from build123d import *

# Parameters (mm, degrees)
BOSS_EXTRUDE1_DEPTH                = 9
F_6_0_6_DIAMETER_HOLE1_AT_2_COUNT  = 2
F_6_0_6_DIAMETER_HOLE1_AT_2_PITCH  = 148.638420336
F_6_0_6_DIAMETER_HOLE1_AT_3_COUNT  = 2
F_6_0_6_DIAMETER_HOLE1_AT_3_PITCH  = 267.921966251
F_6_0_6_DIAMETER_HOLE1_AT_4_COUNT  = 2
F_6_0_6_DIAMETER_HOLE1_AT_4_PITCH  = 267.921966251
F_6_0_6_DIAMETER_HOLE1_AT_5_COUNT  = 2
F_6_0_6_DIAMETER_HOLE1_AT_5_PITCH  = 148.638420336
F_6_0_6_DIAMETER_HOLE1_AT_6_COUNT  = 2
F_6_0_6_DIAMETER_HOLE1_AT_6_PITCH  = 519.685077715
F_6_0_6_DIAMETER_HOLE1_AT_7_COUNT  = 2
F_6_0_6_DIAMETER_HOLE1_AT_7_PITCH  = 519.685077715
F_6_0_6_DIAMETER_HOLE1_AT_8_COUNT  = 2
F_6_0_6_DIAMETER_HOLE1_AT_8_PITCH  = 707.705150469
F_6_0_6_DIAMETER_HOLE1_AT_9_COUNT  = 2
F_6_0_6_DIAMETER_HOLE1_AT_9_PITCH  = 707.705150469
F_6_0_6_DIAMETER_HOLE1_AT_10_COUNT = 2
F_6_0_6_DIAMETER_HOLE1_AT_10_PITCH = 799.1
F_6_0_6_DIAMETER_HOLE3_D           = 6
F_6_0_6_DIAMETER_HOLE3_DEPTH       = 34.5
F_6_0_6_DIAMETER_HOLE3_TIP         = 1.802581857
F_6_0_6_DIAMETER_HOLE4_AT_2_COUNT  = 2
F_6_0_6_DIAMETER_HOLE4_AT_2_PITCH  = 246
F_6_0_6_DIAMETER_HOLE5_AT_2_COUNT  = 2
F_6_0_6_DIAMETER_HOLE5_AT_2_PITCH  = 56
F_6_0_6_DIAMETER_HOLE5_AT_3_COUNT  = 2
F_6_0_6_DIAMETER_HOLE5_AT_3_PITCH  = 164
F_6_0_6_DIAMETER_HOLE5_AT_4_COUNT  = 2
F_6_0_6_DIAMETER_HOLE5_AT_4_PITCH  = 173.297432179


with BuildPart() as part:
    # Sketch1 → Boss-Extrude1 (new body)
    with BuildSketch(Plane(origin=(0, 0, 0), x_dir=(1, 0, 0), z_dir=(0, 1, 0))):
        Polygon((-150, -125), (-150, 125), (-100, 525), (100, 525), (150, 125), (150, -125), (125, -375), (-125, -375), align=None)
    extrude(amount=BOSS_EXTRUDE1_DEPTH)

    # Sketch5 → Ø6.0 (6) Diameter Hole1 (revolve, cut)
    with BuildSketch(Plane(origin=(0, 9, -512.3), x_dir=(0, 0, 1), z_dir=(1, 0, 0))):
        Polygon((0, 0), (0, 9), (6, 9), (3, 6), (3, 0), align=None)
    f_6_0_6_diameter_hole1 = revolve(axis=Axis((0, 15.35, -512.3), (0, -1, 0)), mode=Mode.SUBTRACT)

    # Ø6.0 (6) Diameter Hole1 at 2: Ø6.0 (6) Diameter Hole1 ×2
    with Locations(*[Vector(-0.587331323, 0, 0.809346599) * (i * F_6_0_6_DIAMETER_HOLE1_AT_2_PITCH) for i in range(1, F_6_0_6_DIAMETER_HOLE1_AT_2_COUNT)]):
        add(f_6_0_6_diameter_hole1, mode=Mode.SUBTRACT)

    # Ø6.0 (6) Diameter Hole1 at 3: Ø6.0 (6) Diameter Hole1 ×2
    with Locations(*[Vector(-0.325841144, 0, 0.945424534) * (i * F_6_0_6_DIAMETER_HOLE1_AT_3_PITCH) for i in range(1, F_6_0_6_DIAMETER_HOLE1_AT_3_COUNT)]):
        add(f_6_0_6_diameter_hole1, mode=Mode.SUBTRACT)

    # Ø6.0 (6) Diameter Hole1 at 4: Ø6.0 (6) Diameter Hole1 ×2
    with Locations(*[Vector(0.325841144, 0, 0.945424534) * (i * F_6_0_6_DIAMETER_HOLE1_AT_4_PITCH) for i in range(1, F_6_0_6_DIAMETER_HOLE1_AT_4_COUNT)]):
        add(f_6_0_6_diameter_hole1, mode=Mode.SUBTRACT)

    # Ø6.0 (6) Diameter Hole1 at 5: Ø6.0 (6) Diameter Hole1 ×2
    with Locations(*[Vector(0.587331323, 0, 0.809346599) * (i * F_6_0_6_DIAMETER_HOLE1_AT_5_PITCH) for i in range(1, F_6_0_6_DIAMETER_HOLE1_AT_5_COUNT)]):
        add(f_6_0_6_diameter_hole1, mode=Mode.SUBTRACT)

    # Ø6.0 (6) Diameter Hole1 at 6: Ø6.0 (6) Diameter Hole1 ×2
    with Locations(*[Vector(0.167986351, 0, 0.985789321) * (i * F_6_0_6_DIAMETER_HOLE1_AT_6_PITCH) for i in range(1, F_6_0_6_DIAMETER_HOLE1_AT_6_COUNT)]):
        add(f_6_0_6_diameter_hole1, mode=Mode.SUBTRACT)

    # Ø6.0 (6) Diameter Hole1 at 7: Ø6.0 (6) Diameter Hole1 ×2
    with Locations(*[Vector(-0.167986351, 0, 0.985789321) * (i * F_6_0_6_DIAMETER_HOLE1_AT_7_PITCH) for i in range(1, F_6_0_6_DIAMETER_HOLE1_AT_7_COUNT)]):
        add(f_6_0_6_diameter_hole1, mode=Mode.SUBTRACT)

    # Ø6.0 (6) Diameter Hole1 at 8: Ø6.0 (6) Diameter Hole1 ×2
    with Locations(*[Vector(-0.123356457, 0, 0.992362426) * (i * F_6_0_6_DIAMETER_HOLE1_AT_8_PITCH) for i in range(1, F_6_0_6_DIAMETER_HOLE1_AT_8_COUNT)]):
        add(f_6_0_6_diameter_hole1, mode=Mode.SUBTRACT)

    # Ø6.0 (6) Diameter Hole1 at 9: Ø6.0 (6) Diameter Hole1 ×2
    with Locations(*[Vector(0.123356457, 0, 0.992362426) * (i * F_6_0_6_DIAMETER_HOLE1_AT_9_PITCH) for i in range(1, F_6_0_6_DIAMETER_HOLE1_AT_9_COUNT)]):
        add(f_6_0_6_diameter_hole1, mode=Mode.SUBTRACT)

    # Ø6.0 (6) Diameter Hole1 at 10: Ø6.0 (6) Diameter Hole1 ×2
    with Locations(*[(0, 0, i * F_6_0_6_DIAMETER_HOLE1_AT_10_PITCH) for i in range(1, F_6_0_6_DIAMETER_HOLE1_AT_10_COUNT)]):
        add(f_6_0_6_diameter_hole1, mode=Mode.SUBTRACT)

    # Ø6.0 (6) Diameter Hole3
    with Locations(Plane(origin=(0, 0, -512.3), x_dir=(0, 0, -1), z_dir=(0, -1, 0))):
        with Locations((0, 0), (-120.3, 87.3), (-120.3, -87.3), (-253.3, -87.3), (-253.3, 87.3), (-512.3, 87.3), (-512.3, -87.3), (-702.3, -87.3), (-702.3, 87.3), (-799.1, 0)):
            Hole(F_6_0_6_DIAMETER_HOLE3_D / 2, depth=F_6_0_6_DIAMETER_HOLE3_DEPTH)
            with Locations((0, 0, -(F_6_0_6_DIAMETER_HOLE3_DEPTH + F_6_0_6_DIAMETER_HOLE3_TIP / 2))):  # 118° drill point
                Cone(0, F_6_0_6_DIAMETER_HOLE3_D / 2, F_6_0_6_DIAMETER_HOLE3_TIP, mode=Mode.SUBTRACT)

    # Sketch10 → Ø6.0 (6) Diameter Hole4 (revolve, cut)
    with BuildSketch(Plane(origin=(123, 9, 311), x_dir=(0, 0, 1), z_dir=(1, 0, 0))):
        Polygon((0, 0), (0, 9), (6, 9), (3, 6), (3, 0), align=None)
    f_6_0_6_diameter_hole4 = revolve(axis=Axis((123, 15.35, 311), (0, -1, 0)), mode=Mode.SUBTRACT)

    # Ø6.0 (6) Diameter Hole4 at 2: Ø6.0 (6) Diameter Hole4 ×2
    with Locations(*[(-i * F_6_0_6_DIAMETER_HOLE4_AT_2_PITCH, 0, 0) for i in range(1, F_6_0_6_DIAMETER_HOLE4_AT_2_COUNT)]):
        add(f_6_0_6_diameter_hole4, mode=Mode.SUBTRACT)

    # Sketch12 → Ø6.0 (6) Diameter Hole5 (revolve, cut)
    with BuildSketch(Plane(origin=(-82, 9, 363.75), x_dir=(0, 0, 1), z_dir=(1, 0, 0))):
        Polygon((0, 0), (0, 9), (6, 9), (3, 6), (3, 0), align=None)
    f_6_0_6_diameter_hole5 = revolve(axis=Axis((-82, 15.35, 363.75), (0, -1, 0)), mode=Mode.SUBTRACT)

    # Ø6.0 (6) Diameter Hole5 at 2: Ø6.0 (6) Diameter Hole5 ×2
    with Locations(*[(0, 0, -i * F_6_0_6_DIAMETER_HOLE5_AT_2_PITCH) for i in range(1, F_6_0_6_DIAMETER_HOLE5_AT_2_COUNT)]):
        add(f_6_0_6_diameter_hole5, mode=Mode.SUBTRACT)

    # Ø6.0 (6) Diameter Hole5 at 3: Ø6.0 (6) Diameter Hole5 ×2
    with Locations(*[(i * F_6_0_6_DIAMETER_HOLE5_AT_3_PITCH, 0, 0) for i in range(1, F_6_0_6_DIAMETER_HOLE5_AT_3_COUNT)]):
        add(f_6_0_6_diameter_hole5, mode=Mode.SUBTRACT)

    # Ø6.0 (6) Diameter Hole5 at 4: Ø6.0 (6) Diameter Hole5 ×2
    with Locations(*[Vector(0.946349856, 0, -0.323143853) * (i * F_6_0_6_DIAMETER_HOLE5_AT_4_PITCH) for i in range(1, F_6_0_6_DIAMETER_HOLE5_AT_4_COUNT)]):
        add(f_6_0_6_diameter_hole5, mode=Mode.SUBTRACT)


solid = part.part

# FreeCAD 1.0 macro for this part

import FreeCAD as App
import Part
import Sketcher

V = App.Vector


def add_polygon(sketch, points):
    """Adds a closed chain of lines whose ends are joined by coincident constraints."""
    first, n = sketch.GeometryCount, len(points)
    for a, b in zip(points, points[1:] + points[:1]):
        sketch.addGeometry(Part.LineSegment(App.Vector(*a, 0), App.Vector(*b, 0)), False)
    for i in range(n):
        sketch.addConstraint(Sketcher.Constraint("Coincident", first + i, 2, first + (i + 1) % n, 1))

doc = App.newDocument("Part")
body = doc.addObject("PartDesign::Body", "Body")

# Sketch on XZ plane
sketch1 = doc.addObject("Sketcher::SketchObject", "Sketch")
body.addObject(sketch1)
sketch1.AttachmentSupport = (doc.XZ_Plane, [""])
sketch1.MapMode = "FlatFace"
add_polygon(sketch1, [(-150, -125), (-150, 125), (-125, 375), (125, 375), (150, 125), (150, -125), (100, -525), (-100, -525)])  # lines 0-7
sketch1.addConstraint(Sketcher.Constraint("Vertical", 0))
sketch1.addConstraint(Sketcher.Constraint("Horizontal", 2))
sketch1.addConstraint(Sketcher.Constraint("Vertical", 4))
sketch1.addConstraint(Sketcher.Constraint("Horizontal", 6))
sketch1.addConstraint(Sketcher.Constraint("Symmetric", 0, 2, 4, 2, -1, 1))
sketch1.addConstraint(Sketcher.Constraint("Horizontal", 0, 2, 3, 2))
sketch1.addConstraint(Sketcher.Constraint("Horizontal", 4, 2, 7, 2))
sketch1.addConstraint(Sketcher.Constraint("Equal", 2, 0))
sketch1.addConstraint(Sketcher.Constraint("Equal", 1, 3))
sketch1.addConstraint(Sketcher.Constraint("Equal", 5, 7))
sketch1.addConstraint(Sketcher.Constraint("DistanceX", 2, 1, 2, 2, 250.0))
sketch1.addConstraint(Sketcher.Constraint("DistanceX", 6, 2, 6, 1, 200.0))
sketch1.addConstraint(Sketcher.Constraint("DistanceX", 0, 2, -1, 1, 150.0))
sketch1.addConstraint(Sketcher.Constraint("DistanceY", -1, 1, 1, 2, 375.0))
sketch1.addConstraint(Sketcher.Constraint("DistanceY", 5, 2, -1, 1, 525.0))
pad1 = doc.addObject("PartDesign::Pad", "Pad")
body.addObject(pad1)
pad1.Profile = sketch1
pad1.Length = 9
pad1.Reversed = True

# Sketch on YZ plane
sketch2 = doc.addObject("Sketcher::SketchObject", "Sketch001")
body.addObject(sketch2)
sketch2.AttachmentSupport = (doc.YZ_Plane, [""])
sketch2.MapMode = "FlatFace"
add_polygon(sketch2, [(0, -512.3), (9, -512.3), (9, -509.3), (3, -509.3), (0, -506.3)])  # lines 0-4
sketch2.addGeometry(Part.LineSegment(V(9, -512.3, 0), V(0, -512.3, 0)), True)  # axis
sketch2.addConstraint(Sketcher.Constraint("Horizontal", 0))
sketch2.addConstraint(Sketcher.Constraint("Vertical", 1))
sketch2.addConstraint(Sketcher.Constraint("Horizontal", 2))
sketch2.addConstraint(Sketcher.Constraint("Vertical", 4))
sketch2.addConstraint(Sketcher.Constraint("Horizontal", 5))
sketch2.addConstraint(Sketcher.Constraint("Coincident", 5, 1, 0, 2))
sketch2.addConstraint(Sketcher.Constraint("PointOnObject", 3, 2, -2))
sketch2.addConstraint(Sketcher.Constraint("PointOnObject", 5, 2, -2))
sketch2.addConstraint(Sketcher.Constraint("Equal", 2, 4))
sketch2.addConstraint(Sketcher.Constraint("DistanceX", 0, 1, 0, 2, 9.0))
sketch2.addConstraint(Sketcher.Constraint("DistanceX", 2, 2, 2, 1, 6.0))
sketch2.addConstraint(Sketcher.Constraint("DistanceY", 1, 1, 1, 2, 3.0))
sketch2.addConstraint(Sketcher.Constraint("DistanceY", 0, 2, -1, 1, 512.3))
groove = doc.addObject("PartDesign::Groove", "Groove")
body.addObject(groove)
groove.Profile = sketch2
groove.ReferenceAxis = (sketch2, ["Axis0"])
groove.Angle = 360
doc.recompute()

datumline = doc.addObject("PartDesign::Line", "DatumLine")
body.addObject(datumline)
datumline.Placement = App.Placement(V(0, 0, 0), App.Rotation(V(0, 0, 1), V(-0.587331323, 0, 0.809346599)))
linearpattern = doc.addObject("PartDesign::LinearPattern", "LinearPattern")
body.addObject(linearpattern)
linearpattern.Originals = [groove]
linearpattern.Direction = (datumline, [""])
linearpattern.Mode = "offset"
linearpattern.Offset = 148.63842
linearpattern.Occurrences = 2
body.Tip = linearpattern
doc.recompute()

datumline2 = doc.addObject("PartDesign::Line", "DatumLine001")
body.addObject(datumline2)
datumline2.Placement = App.Placement(V(0, 0, 0), App.Rotation(V(0, 0, 1), V(-0.325841144, 0, 0.945424534)))
linearpattern2 = doc.addObject("PartDesign::LinearPattern", "LinearPattern001")
body.addObject(linearpattern2)
linearpattern2.Originals = [groove]
linearpattern2.Direction = (datumline2, [""])
linearpattern2.Mode = "offset"
linearpattern2.Offset = 267.921966
linearpattern2.Occurrences = 2
body.Tip = linearpattern2
doc.recompute()

datumline3 = doc.addObject("PartDesign::Line", "DatumLine002")
body.addObject(datumline3)
datumline3.Placement = App.Placement(V(0, 0, 0), App.Rotation(V(0, 0, 1), V(0.325841144, 0, 0.945424534)))
linearpattern3 = doc.addObject("PartDesign::LinearPattern", "LinearPattern002")
body.addObject(linearpattern3)
linearpattern3.Originals = [groove]
linearpattern3.Direction = (datumline3, [""])
linearpattern3.Mode = "offset"
linearpattern3.Offset = 267.921966
linearpattern3.Occurrences = 2
body.Tip = linearpattern3
doc.recompute()

datumline4 = doc.addObject("PartDesign::Line", "DatumLine003")
body.addObject(datumline4)
datumline4.Placement = App.Placement(V(0, 0, 0), App.Rotation(V(0, 0, 1), V(0.587331323, 0, 0.809346599)))
linearpattern4 = doc.addObject("PartDesign::LinearPattern", "LinearPattern003")
body.addObject(linearpattern4)
linearpattern4.Originals = [groove]
linearpattern4.Direction = (datumline4, [""])
linearpattern4.Mode = "offset"
linearpattern4.Offset = 148.63842
linearpattern4.Occurrences = 2
body.Tip = linearpattern4
doc.recompute()

datumline5 = doc.addObject("PartDesign::Line", "DatumLine004")
body.addObject(datumline5)
datumline5.Placement = App.Placement(V(0, 0, 0), App.Rotation(V(0, 0, 1), V(0.167986351, 0, 0.985789321)))
linearpattern5 = doc.addObject("PartDesign::LinearPattern", "LinearPattern004")
body.addObject(linearpattern5)
linearpattern5.Originals = [groove]
linearpattern5.Direction = (datumline5, [""])
linearpattern5.Mode = "offset"
linearpattern5.Offset = 519.685078
linearpattern5.Occurrences = 2
body.Tip = linearpattern5
doc.recompute()

datumline6 = doc.addObject("PartDesign::Line", "DatumLine005")
body.addObject(datumline6)
datumline6.Placement = App.Placement(V(0, 0, 0), App.Rotation(V(0, 0, 1), V(-0.167986351, 0, 0.985789321)))
linearpattern6 = doc.addObject("PartDesign::LinearPattern", "LinearPattern005")
body.addObject(linearpattern6)
linearpattern6.Originals = [groove]
linearpattern6.Direction = (datumline6, [""])
linearpattern6.Mode = "offset"
linearpattern6.Offset = 519.685078
linearpattern6.Occurrences = 2
body.Tip = linearpattern6
doc.recompute()

datumline7 = doc.addObject("PartDesign::Line", "DatumLine006")
body.addObject(datumline7)
datumline7.Placement = App.Placement(V(0, 0, 0), App.Rotation(V(0, 0, 1), V(-0.123356457, 0, 0.992362426)))
linearpattern7 = doc.addObject("PartDesign::LinearPattern", "LinearPattern006")
body.addObject(linearpattern7)
linearpattern7.Originals = [groove]
linearpattern7.Direction = (datumline7, [""])
linearpattern7.Mode = "offset"
linearpattern7.Offset = 707.70515
linearpattern7.Occurrences = 2
body.Tip = linearpattern7
doc.recompute()

datumline8 = doc.addObject("PartDesign::Line", "DatumLine007")
body.addObject(datumline8)
datumline8.Placement = App.Placement(V(0, 0, 0), App.Rotation(V(0, 0, 1), V(0.123356457, 0, 0.992362426)))
linearpattern8 = doc.addObject("PartDesign::LinearPattern", "LinearPattern007")
body.addObject(linearpattern8)
linearpattern8.Originals = [groove]
linearpattern8.Direction = (datumline8, [""])
linearpattern8.Mode = "offset"
linearpattern8.Offset = 707.70515
linearpattern8.Occurrences = 2
body.Tip = linearpattern8
doc.recompute()

linearpattern9 = doc.addObject("PartDesign::LinearPattern", "LinearPattern008")
body.addObject(linearpattern9)
linearpattern9.Originals = [groove]
linearpattern9.Direction = (doc.Z_Axis, [""])
linearpattern9.Mode = "offset"
linearpattern9.Offset = 799.1
linearpattern9.Occurrences = 2
body.Tip = linearpattern9

# Sketch on XZ plane
sketch3 = doc.addObject("Sketcher::SketchObject", "Sketch002")
body.addObject(sketch3)
sketch3.AttachmentSupport = (doc.XZ_Plane, [""])
sketch3.MapMode = "FlatFace"
sketch3.addGeometry(Part.Circle(V(0, -512.3, 0), V(0, 0, 1), 3), False)
sketch3.addGeometry(Part.Circle(V(87.3, -392, 0), V(0, 0, 1), 3), False)
sketch3.addGeometry(Part.Circle(V(-87.3, -392, 0), V(0, 0, 1), 3), False)
sketch3.addGeometry(Part.Circle(V(-87.3, -259, 0), V(0, 0, 1), 3), False)
sketch3.addGeometry(Part.Circle(V(87.3, -259, 0), V(0, 0, 1), 3), False)
sketch3.addGeometry(Part.Circle(V(87.3, 0, 0), V(0, 0, 1), 3), False)
sketch3.addGeometry(Part.Circle(V(-87.3, 0, 0), V(0, 0, 1), 3), False)
sketch3.addGeometry(Part.Circle(V(-87.3, 190, 0), V(0, 0, 1), 3), False)
sketch3.addGeometry(Part.Circle(V(87.3, 190, 0), V(0, 0, 1), 3), False)
sketch3.addGeometry(Part.Circle(V(0, 286.8, 0), V(0, 0, 1), 3), False)
sketch3.addConstraint(Sketcher.Constraint("Equal", 0, 1))
sketch3.addConstraint(Sketcher.Constraint("Equal", 1, 2))
sketch3.addConstraint(Sketcher.Constraint("Equal", 2, 3))
sketch3.addConstraint(Sketcher.Constraint("Equal", 3, 4))
sketch3.addConstraint(Sketcher.Constraint("Equal", 4, 5))
sketch3.addConstraint(Sketcher.Constraint("Equal", 5, 6))
sketch3.addConstraint(Sketcher.Constraint("Equal", 6, 7))
sketch3.addConstraint(Sketcher.Constraint("Equal", 7, 8))
sketch3.addConstraint(Sketcher.Constraint("Equal", 8, 9))
sketch3.addConstraint(Sketcher.Constraint("Symmetric", 5, 3, 6, 3, -1, 1))
sketch3.addConstraint(Sketcher.Constraint("Symmetric", 1, 3, 2, 3, -2))
sketch3.addConstraint(Sketcher.Constraint("Symmetric", 3, 3, 4, 3, -2))
sketch3.addConstraint(Sketcher.Constraint("Symmetric", 7, 3, 8, 3, -2))
sketch3.addConstraint(Sketcher.Constraint("PointOnObject", 0, 3, -2))
sketch3.addConstraint(Sketcher.Constraint("PointOnObject", 5, 3, -1))
sketch3.addConstraint(Sketcher.Constraint("PointOnObject", 9, 3, -2))
sketch3.addConstraint(Sketcher.Constraint("Vertical", 2, 3, 3, 3))
sketch3.addConstraint(Sketcher.Constraint("Vertical", 4, 3, 5, 3))
sketch3.addConstraint(Sketcher.Constraint("Vertical", 6, 3, 7, 3))
sketch3.addConstraint(Sketcher.Constraint("Diameter", 0, 6.0))
sketch3.addConstraint(Sketcher.Constraint("DistanceY", 1, 3, -1, 1, 392.0))
sketch3.addConstraint(Sketcher.Constraint("DistanceY", 3, 3, -1, 1, 259.0))
sketch3.addConstraint(Sketcher.Constraint("DistanceY", -1, 1, 7, 3, 190.0))
sketch3.addConstraint(Sketcher.Constraint("DistanceY", 0, 3, -1, 1, 512.3))
sketch3.addConstraint(Sketcher.Constraint("DistanceX", -1, 1, 1, 3, 87.3))
sketch3.addConstraint(Sketcher.Constraint("DistanceY", -1, 1, 9, 3, 286.8))
doc.recompute()
hole = doc.addObject("PartDesign::Hole", "Hole")
body.addObject(hole)
hole.Profile = sketch3
hole.ThreadType = "None"
hole.Diameter = 6
hole.DepthType = "Dimension"
hole.Depth = 34.5
hole.DrillPoint = "Angled"
hole.DrillPointAngle = 118

# Sketch on YZ plane
sketch4 = doc.addObject("Sketcher::SketchObject", "Sketch003")
body.addObject(sketch4)
sketch4.AttachmentSupport = (doc.YZ_Plane, [""])
sketch4.MapMode = "FlatFace"
sketch4.AttachmentOffset = App.Placement(V(0, 0, 123), App.Rotation())
add_polygon(sketch4, [(0, 311), (9, 311), (9, 314), (3, 314), (0, 317)])  # lines 0-4
sketch4.addGeometry(Part.LineSegment(V(9, 311, 0), V(0, 311, 0)), True)  # axis
sketch4.addConstraint(Sketcher.Constraint("Horizontal", 0))
sketch4.addConstraint(Sketcher.Constraint("Vertical", 1))
sketch4.addConstraint(Sketcher.Constraint("Horizontal", 2))
sketch4.addConstraint(Sketcher.Constraint("Vertical", 4))
sketch4.addConstraint(Sketcher.Constraint("Horizontal", 5))
sketch4.addConstraint(Sketcher.Constraint("Coincident", 5, 1, 0, 2))
sketch4.addConstraint(Sketcher.Constraint("PointOnObject", 3, 2, -2))
sketch4.addConstraint(Sketcher.Constraint("PointOnObject", 5, 2, -2))
sketch4.addConstraint(Sketcher.Constraint("Equal", 2, 4))
sketch4.addConstraint(Sketcher.Constraint("DistanceX", 0, 1, 0, 2, 9.0))
sketch4.addConstraint(Sketcher.Constraint("DistanceX", 2, 2, 2, 1, 6.0))
sketch4.addConstraint(Sketcher.Constraint("DistanceY", 1, 1, 1, 2, 3.0))
sketch4.addConstraint(Sketcher.Constraint("DistanceY", -1, 1, 0, 2, 311.0))
groove2 = doc.addObject("PartDesign::Groove", "Groove001")
body.addObject(groove2)
groove2.Profile = sketch4
groove2.ReferenceAxis = (sketch4, ["Axis0"])
groove2.Angle = 360
doc.recompute()

linearpattern10 = doc.addObject("PartDesign::LinearPattern", "LinearPattern009")
body.addObject(linearpattern10)
linearpattern10.Originals = [groove2]
linearpattern10.Direction = (doc.X_Axis, [""])
linearpattern10.Mode = "offset"
linearpattern10.Offset = 246
linearpattern10.Occurrences = 2
linearpattern10.Reversed = True
body.Tip = linearpattern10

# Sketch on YZ plane
sketch5 = doc.addObject("Sketcher::SketchObject", "Sketch004")
body.addObject(sketch5)
sketch5.AttachmentSupport = (doc.YZ_Plane, [""])
sketch5.MapMode = "FlatFace"
sketch5.AttachmentOffset = App.Placement(V(0, 0, -82), App.Rotation())
add_polygon(sketch5, [(0, 363.8), (9, 363.8), (9, 366.8), (3, 366.8), (0, 369.8)])  # lines 0-4
sketch5.addGeometry(Part.LineSegment(V(9, 363.8, 0), V(0, 363.8, 0)), True)  # axis
sketch5.addConstraint(Sketcher.Constraint("Horizontal", 0))
sketch5.addConstraint(Sketcher.Constraint("Vertical", 1))
sketch5.addConstraint(Sketcher.Constraint("Horizontal", 2))
sketch5.addConstraint(Sketcher.Constraint("Vertical", 4))
sketch5.addConstraint(Sketcher.Constraint("Horizontal", 5))
sketch5.addConstraint(Sketcher.Constraint("Coincident", 5, 1, 0, 2))
sketch5.addConstraint(Sketcher.Constraint("PointOnObject", 3, 2, -2))
sketch5.addConstraint(Sketcher.Constraint("PointOnObject", 5, 2, -2))
sketch5.addConstraint(Sketcher.Constraint("Equal", 2, 4))
sketch5.addConstraint(Sketcher.Constraint("DistanceX", 0, 1, 0, 2, 9.0))
sketch5.addConstraint(Sketcher.Constraint("DistanceX", 2, 2, 2, 1, 6.0))
sketch5.addConstraint(Sketcher.Constraint("DistanceY", 1, 1, 1, 2, 3.0))
sketch5.addConstraint(Sketcher.Constraint("DistanceY", -1, 1, 0, 2, 363.75))
groove3 = doc.addObject("PartDesign::Groove", "Groove002")
body.addObject(groove3)
groove3.Profile = sketch5
groove3.ReferenceAxis = (sketch5, ["Axis0"])
groove3.Angle = 360
doc.recompute()

linearpattern11 = doc.addObject("PartDesign::LinearPattern", "LinearPattern010")
body.addObject(linearpattern11)
linearpattern11.Originals = [groove3]
linearpattern11.Direction = (doc.Z_Axis, [""])
linearpattern11.Mode = "offset"
linearpattern11.Offset = 56
linearpattern11.Occurrences = 2
linearpattern11.Reversed = True
body.Tip = linearpattern11
doc.recompute()

linearpattern12 = doc.addObject("PartDesign::LinearPattern", "LinearPattern011")
body.addObject(linearpattern12)
linearpattern12.Originals = [groove3]
linearpattern12.Direction = (doc.X_Axis, [""])
linearpattern12.Mode = "offset"
linearpattern12.Offset = 164
linearpattern12.Occurrences = 2
body.Tip = linearpattern12
doc.recompute()

datumline9 = doc.addObject("PartDesign::Line", "DatumLine008")
body.addObject(datumline9)
datumline9.Placement = App.Placement(V(0, 0, 0), App.Rotation(V(0, 0, 1), V(0.946349856, 0, -0.323143853)))
linearpattern13 = doc.addObject("PartDesign::LinearPattern", "LinearPattern012")
body.addObject(linearpattern13)
linearpattern13.Originals = [groove3]
linearpattern13.Direction = (datumline9, [""])
linearpattern13.Mode = "offset"
linearpattern13.Offset = 173.297432
linearpattern13.Occurrences = 2
body.Tip = linearpattern13

doc.recompute()
